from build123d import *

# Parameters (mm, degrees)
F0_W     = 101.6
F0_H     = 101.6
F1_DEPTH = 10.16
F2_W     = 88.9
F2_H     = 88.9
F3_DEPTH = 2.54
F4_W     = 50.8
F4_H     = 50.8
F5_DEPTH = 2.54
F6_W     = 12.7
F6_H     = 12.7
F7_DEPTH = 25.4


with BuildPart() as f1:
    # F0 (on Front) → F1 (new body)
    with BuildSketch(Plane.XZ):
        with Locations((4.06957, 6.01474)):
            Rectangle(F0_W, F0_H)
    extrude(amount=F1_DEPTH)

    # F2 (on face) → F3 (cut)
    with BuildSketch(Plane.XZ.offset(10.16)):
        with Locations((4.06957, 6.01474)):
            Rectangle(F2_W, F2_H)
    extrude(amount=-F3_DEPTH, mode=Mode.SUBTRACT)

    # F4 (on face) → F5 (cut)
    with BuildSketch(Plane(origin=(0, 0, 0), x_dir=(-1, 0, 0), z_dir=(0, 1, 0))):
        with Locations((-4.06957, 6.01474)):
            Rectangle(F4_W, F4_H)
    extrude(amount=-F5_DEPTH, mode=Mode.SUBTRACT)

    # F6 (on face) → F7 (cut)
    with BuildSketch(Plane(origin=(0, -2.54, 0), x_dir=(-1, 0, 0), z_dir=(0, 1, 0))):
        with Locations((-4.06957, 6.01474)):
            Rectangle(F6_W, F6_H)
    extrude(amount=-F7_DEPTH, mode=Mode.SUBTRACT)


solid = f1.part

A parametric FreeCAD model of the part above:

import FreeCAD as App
import Part
import Sketcher
Q = App.Units.Quantity

doc = App.newDocument("Part")
body = doc.addObject("PartDesign::Body", "Body")

# Sketch on XZ plane
sketch1 = body.newObject("Sketcher::SketchObject", "Sketch")
sketch1.AttachmentSupport = (doc.getObject("XZ_Plane"), [""])
sketch1.MapMode = "FlatFace"
sketch1.addGeometry([
    Part.LineSegment(App.Vector(-46.73043, 56.81474, 0), App.Vector(-46.73043, -44.78526, 0)),
    Part.LineSegment(App.Vector(-46.73043, -44.78526, 0), App.Vector(54.86957, -44.78526, 0)),
    Part.LineSegment(App.Vector(54.86957, -44.78526, 0), App.Vector(54.86957, 56.81474, 0)),
    Part.LineSegment(App.Vector(54.86957, 56.81474, 0), App.Vector(-46.73043, 56.81474, 0)),
], False)
sketch1.addConstraint([
    Sketcher.Constraint("Coincident", 0, 2, 1, 1),
    Sketcher.Constraint("Coincident", 1, 2, 2, 1),
    Sketcher.Constraint("Coincident", 2, 2, 3, 1),
    Sketcher.Constraint("Coincident", 3, 2, 0, 1),
    Sketcher.Constraint("Vertical", 0),
    Sketcher.Constraint("Horizontal", 1),
    Sketcher.Constraint("Vertical", 2),
    Sketcher.Constraint("Horizontal", 3),
    Sketcher.Constraint("Equal", 3, 0),
    Sketcher.Constraint("DistanceX", 1, 1, 1, 2, Q("4 in")),
    Sketcher.Constraint("DistanceX", 0, 2, -1, 1, Q("46.73043 mm")),
    Sketcher.Constraint("DistanceY", 0, 2, -1, 1, Q("44.78526 mm")),
])
pad1 = body.newObject("PartDesign::Pad", "Pad")
pad1.Profile = sketch1
pad1.Length = Q("0.4 in")

# Sketch on XZ plane
sketch2 = body.newObject("Sketcher::SketchObject", "Sketch001")
sketch2.AttachmentSupport = (doc.getObject("XZ_Plane"), [""])
sketch2.MapMode = "FlatFace"
sketch2.AttachmentOffset = App.Placement(App.Vector(0, 0, 0.4 * 25.4), App.Rotation())
sketch2.addGeometry([
    Part.LineSegment(App.Vector(-40.38043, 50.46474, 0), App.Vector(-40.38043, -38.43526, 0)),
    Part.LineSegment(App.Vector(-40.38043, -38.43526, 0), App.Vector(48.51957, -38.43526, 0)),
    Part.LineSegment(App.Vector(48.51957, -38.43526, 0), App.Vector(48.51957, 50.46474, 0)),
    Part.LineSegment(App.Vector(48.51957, 50.46474, 0), App.Vector(-40.38043, 50.46474, 0)),
], False)
sketch2.addConstraint([
    Sketcher.Constraint("Coincident", 0, 2, 1, 1),
    Sketcher.Constraint("Coincident", 1, 2, 2, 1),
    Sketcher.Constraint("Coincident", 2, 2, 3, 1),
    Sketcher.Constraint("Coincident", 3, 2, 0, 1),
    Sketcher.Constraint("Vertical", 0),
    Sketcher.Constraint("Horizontal", 1),
    Sketcher.Constraint("Vertical", 2),
    Sketcher.Constraint("Horizontal", 3),
    Sketcher.Constraint("Equal", 3, 0),
    Sketcher.Constraint("DistanceX", 1, 1, 1, 2, Q("3.5 in")),
    Sketcher.Constraint("DistanceX", 0, 2, -1, 1, Q("40.38043 mm")),
    Sketcher.Constraint("DistanceY", 0, 2, -1, 1, Q("38.43526 mm")),
])
pocket1 = body.newObject("PartDesign::Pocket", "Pocket")
pocket1.Profile = sketch2
pocket1.Length = Q("0.1 in")

# Sketch on XZ plane
sketch3 = body.newObject("Sketcher::SketchObject", "Sketch002")
sketch3.AttachmentSupport = (doc.getObject("XZ_Plane"), [""])
sketch3.MapMode = "FlatFace"
sketch3.addGeometry([
    Part.LineSegment(App.Vector(29.46957, 31.41474, 0), App.Vector(29.46957, -19.38526, 0)),
    Part.LineSegment(App.Vector(29.46957, -19.38526, 0), App.Vector(-21.33043, -19.38526, 0)),
    Part.LineSegment(App.Vector(-21.33043, -19.38526, 0), App.Vector(-21.33043, 31.41474, 0)),
    Part.LineSegment(App.Vector(-21.33043, 31.41474, 0), App.Vector(29.46957, 31.41474, 0)),
], False)
sketch3.addConstraint([
    Sketcher.Constraint("Coincident", 0, 2, 1, 1),
    Sketcher.Constraint("Coincident", 1, 2, 2, 1),
    Sketcher.Constraint("Coincident", 2, 2, 3, 1),
    Sketcher.Constraint("Coincident", 3, 2, 0, 1),
    Sketcher.Constraint("Vertical", 0),
    Sketcher.Constraint("Horizontal", 1),
    Sketcher.Constraint("Vertical", 2),
    Sketcher.Constraint("Horizontal", 3),
    Sketcher.Constraint("Equal", 3, 0),
    Sketcher.Constraint("DistanceX", 1, 2, 1, 1, Q("2 in")),
    Sketcher.Constraint("DistanceX", -1, 1, 0, 2, Q("29.46957 mm")),
    Sketcher.Constraint("DistanceY", 0, 2, -1, 1, Q("19.38526 mm")),
])
pocket2 = body.newObject("PartDesign::Pocket", "Pocket001")
pocket2.Profile = sketch3
pocket2.Length = Q("0.1 in")
pocket2.Reversed = True

# Sketch on XZ plane
sketch4 = body.newObject("Sketcher::SketchObject", "Sketch003")
sketch4.AttachmentSupport = (doc.getObject("XZ_Plane"), [""])
sketch4.MapMode = "FlatFace"
sketch4.AttachmentOffset = App.Placement(App.Vector(0, 0, 0.1 * 25.4), App.Rotation())
sketch4.addGeometry([
    Part.LineSegment(App.Vector(10.41957, 12.36474, 0), App.Vector(10.41957, -0.33526, 0)),
    Part.LineSegment(App.Vector(10.41957, -0.33526, 0), App.Vector(-2.28043, -0.33526, 0)),
    Part.LineSegment(App.Vector(-2.28043, -0.33526, 0), App.Vector(-2.28043, 12.36474, 0)),
    Part.LineSegment(App.Vector(-2.28043, 12.36474, 0), App.Vector(10.41957, 12.36474, 0)),
], False)
sketch4.addConstraint([
    Sketcher.Constraint("Coincident", 0, 2, 1, 1),
    Sketcher.Constraint("Coincident", 1, 2, 2, 1),
    Sketcher.Constraint("Coincident", 2, 2, 3, 1),
    Sketcher.Constraint("Coincident", 3, 2, 0, 1),
    Sketcher.Constraint("Vertical", 0),
    Sketcher.Constraint("Horizontal", 1),
    Sketcher.Constraint("Vertical", 2),
    Sketcher.Constraint("Horizontal", 3),
    Sketcher.Constraint("Equal", 3, 0),
    Sketcher.Constraint("DistanceX", 1, 2, 1, 1, Q("0.5 in")),
    Sketcher.Constraint("DistanceX", -1, 1, 0, 2, Q("10.41957 mm")),
    Sketcher.Constraint("DistanceY", 0, 2, -1, 1, Q("0.33526 mm")),
])
pocket3 = body.newObject("PartDesign::Pocket", "Pocket002")
pocket3.Profile = sketch4
pocket3.Length = Q("1 in")
pocket3.Reversed = True

doc.recompute()
